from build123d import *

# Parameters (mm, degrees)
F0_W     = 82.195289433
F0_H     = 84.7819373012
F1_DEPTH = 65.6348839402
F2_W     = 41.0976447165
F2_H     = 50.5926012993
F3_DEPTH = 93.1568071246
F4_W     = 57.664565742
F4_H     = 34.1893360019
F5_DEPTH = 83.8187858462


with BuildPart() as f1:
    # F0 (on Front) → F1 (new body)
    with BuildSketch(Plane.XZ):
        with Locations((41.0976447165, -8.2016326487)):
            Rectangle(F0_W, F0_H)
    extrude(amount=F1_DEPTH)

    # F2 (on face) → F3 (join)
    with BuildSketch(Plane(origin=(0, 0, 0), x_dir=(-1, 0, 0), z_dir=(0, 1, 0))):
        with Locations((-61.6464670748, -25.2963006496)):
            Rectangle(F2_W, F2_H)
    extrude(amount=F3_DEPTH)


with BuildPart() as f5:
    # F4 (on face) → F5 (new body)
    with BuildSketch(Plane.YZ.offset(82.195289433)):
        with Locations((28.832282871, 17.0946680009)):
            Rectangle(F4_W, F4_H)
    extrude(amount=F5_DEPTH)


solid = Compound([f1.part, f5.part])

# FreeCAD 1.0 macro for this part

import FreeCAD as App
import Part
import Sketcher

doc = App.newDocument("Part")
body = doc.addObject("PartDesign::Body", "Body")

sketch1 = body.newObject("Sketcher::SketchObject", "Sketch")
sketch1.AttachmentSupport = (doc.getObject("XZ_Plane"), [""])
sketch1.MapMode = "FlatFace"
sketch1.addGeometry(Part.LineSegment(App.Vector(0, 34, 0), App.Vector(0, -51, 0)), False)
sketch1.addGeometry(Part.LineSegment(App.Vector(0, -51, 0), App.Vector(82, -51, 0)), False)
sketch1.addGeometry(Part.LineSegment(App.Vector(82, -51, 0), App.Vector(82, 34, 0)), False)
sketch1.addGeometry(Part.LineSegment(App.Vector(82, 34, 0), App.Vector(0, 34, 0)), False)
sketch1.addConstraint(Sketcher.Constraint("Coincident", 0, 2, 1, 1))
sketch1.addConstraint(Sketcher.Constraint("Coincident", 1, 2, 2, 1))
sketch1.addConstraint(Sketcher.Constraint("Coincident", 2, 2, 3, 1))
sketch1.addConstraint(Sketcher.Constraint("Coincident", 3, 2, 0, 1))
sketch1.addConstraint(Sketcher.Constraint("Vertical", 0))
sketch1.addConstraint(Sketcher.Constraint("Horizontal", 1))
sketch1.addConstraint(Sketcher.Constraint("Vertical", 2))
sketch1.addConstraint(Sketcher.Constraint("Horizontal", 3))
sketch1.addConstraint(Sketcher.Constraint("PointOnObject", 0, 2, -2))
sketch1.addConstraint(Sketcher.Constraint("DistanceX", 1, 1, 1, 2, 82.195289))
sketch1.addConstraint(Sketcher.Constraint("DistanceY", 0, 2, -1, 1, 50.592601))
sketch1.addConstraint(Sketcher.Constraint("DistanceY", 0, 2, 0, 1, 84.781937))
pad1 = body.newObject("PartDesign::Pad", "Pad")
pad1.Profile = sketch1
pad1.Length = 65.634884

sketch2 = body.newObject("Sketcher::SketchObject", "Sketch001")
sketch2.AttachmentSupport = (doc.getObject("XZ_Plane"), [""])
sketch2.MapMode = "FlatFace"
sketch2.addGeometry(Part.LineSegment(App.Vector(82, 0, 0), App.Vector(82, -51, 0)), False)
sketch2.addGeometry(Part.LineSegment(App.Vector(82, -51, 0), App.Vector(41, -51, 0)), False)
sketch2.addGeometry(Part.LineSegment(App.Vector(41, -51, 0), App.Vector(41, 0, 0)), False)
sketch2.addGeometry(Part.LineSegment(App.Vector(41, 0, 0), App.Vector(82, 0, 0)), False)
sketch2.addConstraint(Sketcher.Constraint("Coincident", 0, 2, 1, 1))
sketch2.addConstraint(Sketcher.Constraint("Coincident", 1, 2, 2, 1))
sketch2.addConstraint(Sketcher.Constraint("Coincident", 2, 2, 3, 1))
sketch2.addConstraint(Sketcher.Constraint("Coincident", 3, 2, 0, 1))
sketch2.addConstraint(Sketcher.Constraint("Vertical", 0))
sketch2.addConstraint(Sketcher.Constraint("Horizontal", 1))
sketch2.addConstraint(Sketcher.Constraint("Vertical", 2))
sketch2.addConstraint(Sketcher.Constraint("Horizontal", 3))
sketch2.addConstraint(Sketcher.Constraint("PointOnObject", 2, 2, -1))
sketch2.addConstraint(Sketcher.Constraint("DistanceY", 0, 2, 0, 1, 50.592601))
sketch2.addConstraint(Sketcher.Constraint("DistanceX", 1, 2, 1, 1, 41.097645))
sketch2.addConstraint(Sketcher.Constraint("DistanceX", -1, 1, 0, 2, 82.195289))
pad2 = body.newObject("PartDesign::Pad", "Pad001")
pad2.Profile = sketch2
pad2.Length = 93.156807
pad2.Reversed = True
body2 = doc.addObject("PartDesign::Body", "Body001")

sketch3 = body2.newObject("Sketcher::SketchObject", "Sketch002")
sketch3.AttachmentSupport = (doc.getObject("YZ_Plane001"), [""])
sketch3.MapMode = "FlatFace"
sketch3.AttachmentOffset = App.Placement(App.Vector(0, 0, 82.195289), App.Rotation())
sketch3.addGeometry(Part.LineSegment(App.Vector(0, 34, 0), App.Vector(0, 0, 0)), False)
sketch3.addGeometry(Part.LineSegment(App.Vector(0, 0, 0), App.Vector(58, 0, 0)), False)
sketch3.addGeometry(Part.LineSegment(App.Vector(58, 0, 0), App.Vector(58, 34, 0)), False)
sketch3.addGeometry(Part.LineSegment(App.Vector(58, 34, 0), App.Vector(0, 34, 0)), False)
sketch3.addConstraint(Sketcher.Constraint("Coincident", 0, 2, 1, 1))
sketch3.addConstraint(Sketcher.Constraint("Coincident", 1, 2, 2, 1))
sketch3.addConstraint(Sketcher.Constraint("Coincident", 2, 2, 3, 1))
sketch3.addConstraint(Sketcher.Constraint("Coincident", 3, 2, 0, 1))
sketch3.addConstraint(Sketcher.Constraint("Vertical", 0))
sketch3.addConstraint(Sketcher.Constraint("Horizontal", 1))
sketch3.addConstraint(Sketcher.Constraint("Vertical", 2))
sketch3.addConstraint(Sketcher.Constraint("Horizontal", 3))
sketch3.addConstraint(Sketcher.Constraint("Coincident", 0, 2, -1, 1))
sketch3.addConstraint(Sketcher.Constraint("DistanceX", 1, 1, 1, 2, 57.664566))
sketch3.addConstraint(Sketcher.Constraint("DistanceY", 0, 2, 0, 1, 34.189336))
pad3 = body2.newObject("PartDesign::Pad", "Pad002")
pad3.Profile = sketch3
pad3.Length = 83.818786

doc.recompute()
